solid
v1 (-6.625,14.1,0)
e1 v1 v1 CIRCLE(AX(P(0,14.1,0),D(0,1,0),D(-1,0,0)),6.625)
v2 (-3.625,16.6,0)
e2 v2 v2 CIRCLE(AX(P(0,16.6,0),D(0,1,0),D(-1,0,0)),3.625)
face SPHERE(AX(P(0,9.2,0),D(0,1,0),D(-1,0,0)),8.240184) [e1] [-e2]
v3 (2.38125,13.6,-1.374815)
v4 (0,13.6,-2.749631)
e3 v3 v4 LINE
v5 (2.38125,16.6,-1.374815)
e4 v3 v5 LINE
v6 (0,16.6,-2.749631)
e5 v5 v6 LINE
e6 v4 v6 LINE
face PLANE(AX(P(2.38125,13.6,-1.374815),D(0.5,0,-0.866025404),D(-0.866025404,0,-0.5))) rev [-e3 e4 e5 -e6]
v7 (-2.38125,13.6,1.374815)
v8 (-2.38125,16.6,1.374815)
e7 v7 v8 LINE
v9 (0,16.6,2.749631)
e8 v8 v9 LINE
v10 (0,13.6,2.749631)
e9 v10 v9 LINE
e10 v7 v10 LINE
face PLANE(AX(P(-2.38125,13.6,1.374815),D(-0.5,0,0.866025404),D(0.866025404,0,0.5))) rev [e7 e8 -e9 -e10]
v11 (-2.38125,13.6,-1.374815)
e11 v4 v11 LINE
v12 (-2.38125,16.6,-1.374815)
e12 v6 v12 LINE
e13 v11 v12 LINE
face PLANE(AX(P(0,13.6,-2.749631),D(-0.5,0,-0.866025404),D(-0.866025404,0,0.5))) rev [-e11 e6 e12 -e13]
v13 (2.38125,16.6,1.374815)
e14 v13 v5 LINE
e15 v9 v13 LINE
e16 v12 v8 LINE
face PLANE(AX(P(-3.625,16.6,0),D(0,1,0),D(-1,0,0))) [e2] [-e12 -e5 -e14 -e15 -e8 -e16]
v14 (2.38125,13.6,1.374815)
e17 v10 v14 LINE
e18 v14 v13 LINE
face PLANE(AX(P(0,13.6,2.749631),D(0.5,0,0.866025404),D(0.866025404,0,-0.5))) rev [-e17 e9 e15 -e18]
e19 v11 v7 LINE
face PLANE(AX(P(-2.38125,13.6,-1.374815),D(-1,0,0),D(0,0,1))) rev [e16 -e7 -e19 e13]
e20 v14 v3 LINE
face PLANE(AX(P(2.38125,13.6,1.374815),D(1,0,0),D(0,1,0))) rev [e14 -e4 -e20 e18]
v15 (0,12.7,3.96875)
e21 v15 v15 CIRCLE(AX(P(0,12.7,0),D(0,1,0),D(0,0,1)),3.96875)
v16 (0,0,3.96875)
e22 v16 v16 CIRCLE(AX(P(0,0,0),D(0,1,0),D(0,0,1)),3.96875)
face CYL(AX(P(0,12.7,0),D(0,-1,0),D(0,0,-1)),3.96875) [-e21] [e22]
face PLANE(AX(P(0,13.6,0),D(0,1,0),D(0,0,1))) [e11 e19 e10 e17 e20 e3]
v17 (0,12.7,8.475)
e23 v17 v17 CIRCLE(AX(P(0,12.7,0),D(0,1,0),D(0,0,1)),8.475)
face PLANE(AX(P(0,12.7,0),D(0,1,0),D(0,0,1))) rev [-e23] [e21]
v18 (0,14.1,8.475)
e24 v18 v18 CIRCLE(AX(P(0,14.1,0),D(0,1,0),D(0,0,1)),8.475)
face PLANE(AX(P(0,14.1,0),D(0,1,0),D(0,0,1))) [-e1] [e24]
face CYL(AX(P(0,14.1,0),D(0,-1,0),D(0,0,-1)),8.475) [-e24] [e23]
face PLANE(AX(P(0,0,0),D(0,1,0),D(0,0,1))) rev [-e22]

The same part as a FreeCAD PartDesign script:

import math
import FreeCAD as App
import Part
import Sketcher
Q = App.Units.Quantity

doc = App.newDocument("Part")
body = doc.addObject("PartDesign::Body", "Body")

# Sketch on XZ plane
sketch1 = body.newObject("Sketcher::SketchObject", "Sketch")
sketch1.AttachmentSupport = (doc.getObject("XZ_Plane"), [""])
sketch1.MapMode = "FlatFace"
sketch1.addGeometry(Part.Circle(App.Vector(0, 0, 0), App.Vector(0, 0, 1), 3.96875), False)
sketch1.addConstraint([
    Sketcher.Constraint("Coincident", 0, 3, -1, 1),
    Sketcher.Constraint("Diameter", 0, 7.9375),
])
pad1 = body.newObject("PartDesign::Pad", "Pad")
pad1.Profile = sketch1
pad1.Length = 12.7
pad1.Reversed = True

# Sketch on XZ plane
sketch2 = body.newObject("Sketcher::SketchObject", "Sketch001")
sketch2.AttachmentSupport = (doc.getObject("XZ_Plane"), [""])
sketch2.MapMode = "FlatFace"
sketch2.AttachmentOffset = App.Placement(App.Vector(0, 0, -12.7), App.Rotation())
sketch2.addGeometry(Part.Circle(App.Vector(0, 0, 0), App.Vector(0, 0, 1), 8.475), False)
sketch2.addConstraint([
    Sketcher.Constraint("Coincident", 0, 3, -1, 1),
    Sketcher.Constraint("Diameter", 0, 16.95),
])
pad2 = body.newObject("PartDesign::Pad", "Pad001")
pad2.Profile = sketch2
pad2.Length = 1.4
pad2.Reversed = True

# Sketch on XY plane
sketch3 = body.newObject("Sketcher::SketchObject", "Sketch002")
sketch3.AttachmentSupport = (doc.getObject("XY_Plane"), [""])
sketch3.MapMode = "FlatFace"
sketch3.addGeometry([
    Part.LineSegment(App.Vector(0, 16.6, 0), App.Vector(-3.625, 16.6, 0)),
    Part.ArcOfCircle(Part.Circle(App.Vector(0, 9.2, 0), App.Vector(0, 0, 1), 8.240184), math.radians(116.09861), math.radians(143.512532)),
    Part.LineSegment(App.Vector(-6.625, 14.1, 0), App.Vector(0, 14.1, 0)),
    Part.LineSegment(App.Vector(0, 14.1, 0), App.Vector(0, 16.6, 0)),
], False)
sketch3.addConstraint([
    Sketcher.Constraint("Coincident", 0, 2, 1, 1),
    Sketcher.Constraint("Coincident", 1, 2, 2, 1),
    Sketcher.Constraint("Coincident", 2, 2, 3, 1),
    Sketcher.Constraint("Coincident", 3, 2, 0, 1),
    Sketcher.Constraint("Horizontal", 0),
    Sketcher.Constraint("Horizontal", 2),
    Sketcher.Constraint("Vertical", 3),
    Sketcher.Constraint("PointOnObject", 1, 3, -2),
    Sketcher.Constraint("PointOnObject", 2, 2, -2),
    Sketcher.Constraint("DistanceY", 3, 1, 3, 2, 2.5),
    Sketcher.Constraint("DistanceX", 1, 2, 0, 2, 3.0),
    Sketcher.Constraint("DistanceY", -1, 1, 1, 3, 9.2),
    Sketcher.Constraint("DistanceY", -1, 1, 0, 2, 16.6),
])
revolution = body.newObject("PartDesign::Revolution", "Revolution")
revolution.Profile = sketch3
revolution.ReferenceAxis = (sketch3, ["V_Axis"])
revolution.Angle = 360

# Sketch on XZ plane
sketch4 = body.newObject("Sketcher::SketchObject", "Sketch003")
sketch4.AttachmentSupport = (doc.getObject("XZ_Plane"), [""])
sketch4.MapMode = "FlatFace"
sketch4.AttachmentOffset = App.Placement(App.Vector(0, 0, -16.6), App.Rotation())
sketch4.addGeometry([
    Part.LineSegment(App.Vector(-2.38125, -1.374815, 0), App.Vector(-2.38125, 1.374815, 0)),  # 0
    Part.LineSegment(App.Vector(-2.38125, 1.374815, 0), App.Vector(0, 2.749631, 0)),  # 1
    Part.LineSegment(App.Vector(0, 2.749631, 0), App.Vector(2.38125, 1.374815, 0)),  # 2
    Part.LineSegment(App.Vector(2.38125, 1.374815, 0), App.Vector(2.38125, -1.374815, 0)),  # 3
    Part.LineSegment(App.Vector(2.38125, -1.374815, 0), App.Vector(0, -2.749631, 0)),  # 4
    Part.LineSegment(App.Vector(0, -2.749631, 0), App.Vector(-2.38125, -1.374815, 0)),  # 5
], False)
sketch4.addConstraint([
    Sketcher.Constraint("Coincident", 0, 2, 1, 1),
    Sketcher.Constraint("Coincident", 1, 2, 2, 1),
    Sketcher.Constraint("Coincident", 2, 2, 3, 1),
    Sketcher.Constraint("Coincident", 3, 2, 4, 1),
    Sketcher.Constraint("Coincident", 4, 2, 5, 1),
    Sketcher.Constraint("Coincident", 5, 2, 0, 1),
    Sketcher.Constraint("Vertical", 0),
    Sketcher.Constraint("Vertical", 3),
    Sketcher.Constraint("Symmetric", 0, 2, 3, 2, -1, 1),
    Sketcher.Constraint("Symmetric", 1, 2, 4, 2, -1, 1),
    Sketcher.Constraint("PointOnObject", 1, 2, -2),
    Sketcher.Constraint("Parallel", 2, 5),
    Sketcher.Constraint("Horizontal", 0, 2, 2, 2),
    Sketcher.Constraint("Angle", 1, Q("30 deg")),
    Sketcher.Constraint("DistanceY", 0, 1, 0, 2, 2.749631),
    Sketcher.Constraint("DistanceX", 0, 2, 2, 2, 4.7625),
])
pocket1 = body.newObject("PartDesign::Pocket", "Pocket")
pocket1.Profile = sketch4
pocket1.Length = 3
pocket1.Reversed = True

doc.recompute()
